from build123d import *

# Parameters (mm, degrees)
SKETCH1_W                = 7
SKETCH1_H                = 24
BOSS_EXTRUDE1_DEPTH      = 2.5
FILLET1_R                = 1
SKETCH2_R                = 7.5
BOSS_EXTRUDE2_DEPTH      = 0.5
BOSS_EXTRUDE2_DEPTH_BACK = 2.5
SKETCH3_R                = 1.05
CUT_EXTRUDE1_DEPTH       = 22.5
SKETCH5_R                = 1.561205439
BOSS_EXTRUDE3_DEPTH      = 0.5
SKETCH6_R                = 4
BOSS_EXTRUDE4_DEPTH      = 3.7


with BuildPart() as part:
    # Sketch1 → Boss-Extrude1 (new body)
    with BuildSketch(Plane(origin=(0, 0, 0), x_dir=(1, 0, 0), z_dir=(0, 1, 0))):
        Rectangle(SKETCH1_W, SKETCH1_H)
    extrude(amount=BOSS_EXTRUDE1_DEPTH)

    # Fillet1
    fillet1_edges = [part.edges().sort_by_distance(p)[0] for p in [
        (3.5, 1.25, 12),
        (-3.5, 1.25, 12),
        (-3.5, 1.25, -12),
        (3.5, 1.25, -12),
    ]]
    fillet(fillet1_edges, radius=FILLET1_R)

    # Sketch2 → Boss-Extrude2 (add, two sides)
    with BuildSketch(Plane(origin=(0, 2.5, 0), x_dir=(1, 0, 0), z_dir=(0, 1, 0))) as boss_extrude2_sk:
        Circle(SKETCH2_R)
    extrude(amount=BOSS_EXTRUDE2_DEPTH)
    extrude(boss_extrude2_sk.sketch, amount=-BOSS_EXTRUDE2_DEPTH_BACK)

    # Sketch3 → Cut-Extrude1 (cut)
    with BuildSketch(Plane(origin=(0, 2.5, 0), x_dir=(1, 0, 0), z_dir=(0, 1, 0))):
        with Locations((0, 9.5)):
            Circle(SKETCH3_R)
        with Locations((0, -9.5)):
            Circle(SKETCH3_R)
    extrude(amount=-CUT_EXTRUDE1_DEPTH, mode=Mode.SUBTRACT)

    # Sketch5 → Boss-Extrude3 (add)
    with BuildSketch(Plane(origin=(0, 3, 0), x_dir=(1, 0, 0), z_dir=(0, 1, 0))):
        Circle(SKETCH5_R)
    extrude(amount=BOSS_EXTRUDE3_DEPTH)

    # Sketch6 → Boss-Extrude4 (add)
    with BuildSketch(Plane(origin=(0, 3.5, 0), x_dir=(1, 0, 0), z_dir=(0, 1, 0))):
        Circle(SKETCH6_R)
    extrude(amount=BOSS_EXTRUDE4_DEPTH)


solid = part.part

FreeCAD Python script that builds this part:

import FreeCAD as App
import Part
import Sketcher
from FreeCAD import Vector


def edges_at(feature, points):
    """Names of the edges that pass closest to the given points."""
    edges = feature.Shape.Edges
    near = lambda p: min(range(len(edges)), key=lambda i: edges[i].distToShape(Part.Vertex(*p))[0])
    return sorted({f"Edge{near(p) + 1}" for p in points})


def add_polygon(sketch, points):
    """Adds a closed chain of lines whose ends are joined by coincident constraints."""
    first, n = sketch.GeometryCount, len(points)
    for a, b in zip(points, points[1:] + points[:1]):
        sketch.addGeometry(Part.LineSegment(App.Vector(*a, 0), App.Vector(*b, 0)), False)
    for i in range(n):
        sketch.addConstraint(Sketcher.Constraint("Coincident", first + i, 2, first + (i + 1) % n, 1))

doc = App.newDocument("Part")
body = doc.addObject("PartDesign::Body", "Body")

sketch1 = body.newObject("Sketcher::SketchObject", "Sketch")
sketch1.AttachmentSupport = (doc.getObject("XZ_Plane"), [""])
sketch1.MapMode = "FlatFace"
add_polygon(sketch1, [(-4, -12), (-4, 12), (4, 12), (4, -12)])
sketch1.addConstraint([
    Sketcher.Constraint("Vertical", 0),
    Sketcher.Constraint("Horizontal", 1),
    Sketcher.Constraint("Vertical", 2),
    Sketcher.Constraint("Horizontal", 3),
    Sketcher.Constraint("Symmetric", 0, 2, 2, 2, -1, 1),
    Sketcher.Constraint("DistanceX", 1, 1, 1, 2, 7.0),
    Sketcher.Constraint("DistanceY", 0, 1, 0, 2, 24.0),
])
pad1 = body.newObject("PartDesign::Pad", "Pad")
pad1.Profile = sketch1
pad1.Length = 2.5
pad1.Reversed = True
doc.recompute()

fillet = body.newObject("PartDesign::Fillet", "Fillet")
fillet.Base = (pad1, edges_at(pad1, [
    (3.5, 1.25, 12),
    (-3.5, 1.25, 12),
    (-3.5, 1.25, -12),
    (3.5, 1.25, -12),
]))
fillet.Radius = 1

sketch2 = body.newObject("Sketcher::SketchObject", "Sketch001")
sketch2.AttachmentSupport = (doc.getObject("XZ_Plane"), [""])
sketch2.MapMode = "FlatFace"
sketch2.AttachmentOffset = App.Placement(Vector(0, 0, -2.5), App.Rotation())
sketch2.addGeometry(Part.Circle(Vector(0, 0, 0), Vector(0, 0, 1), 8), False)
sketch2.addConstraint([
    Sketcher.Constraint("Coincident", 0, 3, -1, 1),
    Sketcher.Constraint("Diameter", 0, 15.0),
])
pad2 = body.newObject("PartDesign::Pad", "Pad001")
pad2.Profile = sketch2
pad2.Type = "TwoLengths"
pad2.Length = 0.5
pad2.Length2 = 2.5
pad2.Reversed = True

sketch3 = body.newObject("Sketcher::SketchObject", "Sketch002")
sketch3.AttachmentSupport = (doc.getObject("XZ_Plane"), [""])
sketch3.MapMode = "FlatFace"
sketch3.AttachmentOffset = App.Placement(Vector(0, 0, -2.5), App.Rotation())
sketch3.addGeometry([
    Part.Circle(Vector(0, -9.5, 0), Vector(0, 0, 1), 1.1),
    Part.Circle(Vector(0, 9.5, 0), Vector(0, 0, 1), 1.1),
], False)
sketch3.addConstraint([
    Sketcher.Constraint("Equal", 0, 1),
    Sketcher.Constraint("Symmetric", 0, 3, 1, 3, -1, 1),
    Sketcher.Constraint("PointOnObject", 0, 3, -2),
    Sketcher.Constraint("Diameter", 0, 2.1),
    Sketcher.Constraint("DistanceY", 0, 3, 1, 3, 19.0),
])
pocket1 = body.newObject("PartDesign::Pocket", "Pocket")
pocket1.Profile = sketch3
pocket1.Length = 22.5
pocket1.Reversed = True

sketch4 = body.newObject("Sketcher::SketchObject", "Sketch003")
sketch4.AttachmentSupport = (doc.getObject("XZ_Plane"), [""])
sketch4.MapMode = "FlatFace"
sketch4.AttachmentOffset = App.Placement(Vector(0, 0, -3), App.Rotation())
sketch4.addGeometry(Part.Circle(Vector(0, 0, 0), Vector(0, 0, 1), 1.6), False)
sketch4.addConstraint([
    Sketcher.Constraint("Coincident", 0, 3, -1, 1),
    Sketcher.Constraint("Diameter", 0, 3.122411),
])
pad3 = body.newObject("PartDesign::Pad", "Pad002")
pad3.Profile = sketch4
pad3.Length = 0.5
pad3.Reversed = True

sketch5 = body.newObject("Sketcher::SketchObject", "Sketch004")
sketch5.AttachmentSupport = (doc.getObject("XZ_Plane"), [""])
sketch5.MapMode = "FlatFace"
sketch5.AttachmentOffset = App.Placement(Vector(0, 0, -3.5), App.Rotation())
sketch5.addGeometry(Part.Circle(Vector(0, 0, 0), Vector(0, 0, 1), 4), False)
sketch5.addConstraint([
    Sketcher.Constraint("Coincident", 0, 3, -1, 1),
    Sketcher.Constraint("Diameter", 0, 8.0),
])
pad4 = body.newObject("PartDesign::Pad", "Pad003")
pad4.Profile = sketch5
pad4.Length = 3.7
pad4.Reversed = True

doc.recompute()
